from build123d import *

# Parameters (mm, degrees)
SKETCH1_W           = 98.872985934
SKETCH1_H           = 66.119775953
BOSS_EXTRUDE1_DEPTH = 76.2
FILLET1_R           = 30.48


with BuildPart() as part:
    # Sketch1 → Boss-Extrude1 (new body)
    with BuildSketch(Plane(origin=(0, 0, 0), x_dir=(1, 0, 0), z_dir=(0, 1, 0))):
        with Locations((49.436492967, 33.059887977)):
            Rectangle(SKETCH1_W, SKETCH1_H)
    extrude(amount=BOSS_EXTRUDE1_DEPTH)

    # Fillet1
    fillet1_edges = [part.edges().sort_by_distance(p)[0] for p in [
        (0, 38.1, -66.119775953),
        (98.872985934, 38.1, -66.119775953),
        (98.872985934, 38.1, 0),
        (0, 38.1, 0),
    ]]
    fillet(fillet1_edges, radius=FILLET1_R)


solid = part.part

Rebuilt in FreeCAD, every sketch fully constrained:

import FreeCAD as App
import Part
import Sketcher
Q = App.Units.Quantity


def edges_at(feature, points):
    """Names of the edges that pass closest to the given points."""
    edges = feature.Shape.Edges
    near = lambda p: min(range(len(edges)), key=lambda i: edges[i].distToShape(Part.Vertex(*p))[0])
    return sorted({f"Edge{near(p) + 1}" for p in points})


def add_polygon(sketch, points):
    """Adds a closed chain of lines whose ends are joined by coincident constraints."""
    first, n = sketch.GeometryCount, len(points)
    for a, b in zip(points, points[1:] + points[:1]):
        sketch.addGeometry(Part.LineSegment(App.Vector(*a, 0), App.Vector(*b, 0)), False)
    for i in range(n):
        sketch.addConstraint(Sketcher.Constraint("Coincident", first + i, 2, first + (i + 1) % n, 1))

doc = App.newDocument("Part")
body = doc.addObject("PartDesign::Body", "Body")

# Sketch on XZ plane
sketch1 = body.newObject("Sketcher::SketchObject", "Sketch")
sketch1.AttachmentSupport = (doc.getObject("XZ_Plane"), [""])
sketch1.MapMode = "FlatFace"
add_polygon(sketch1, [(0, -66), (0, 0), (99, 0), (99, -66)])  # lines 0-3
sketch1.addConstraint([
    Sketcher.Constraint("Vertical", 0),
    Sketcher.Constraint("Horizontal", 1),
    Sketcher.Constraint("Vertical", 2),
    Sketcher.Constraint("Horizontal", 3),
    Sketcher.Constraint("Coincident", 0, 2, -1, 1),
    Sketcher.Constraint("DistanceX", 1, 1, 1, 2, Q("98.872986 mm")),
    Sketcher.Constraint("DistanceY", 0, 1, 0, 2, Q("66.119776 mm")),
])
pad1 = body.newObject("PartDesign::Pad", "Pad")
pad1.Profile = sketch1
pad1.Length = Q("3 in")
pad1.Reversed = True
doc.recompute()

fillet = body.newObject("PartDesign::Fillet", "Fillet")
fillet.Base = (pad1, edges_at(pad1, [
    (0, 38.1, -66.12),
    (98.873, 38.1, -66.12),
    (98.873, 38.1, 0),
    (0, 38.1, 0),
]))
fillet.Radius = Q("1.2 in")

doc.recompute()
